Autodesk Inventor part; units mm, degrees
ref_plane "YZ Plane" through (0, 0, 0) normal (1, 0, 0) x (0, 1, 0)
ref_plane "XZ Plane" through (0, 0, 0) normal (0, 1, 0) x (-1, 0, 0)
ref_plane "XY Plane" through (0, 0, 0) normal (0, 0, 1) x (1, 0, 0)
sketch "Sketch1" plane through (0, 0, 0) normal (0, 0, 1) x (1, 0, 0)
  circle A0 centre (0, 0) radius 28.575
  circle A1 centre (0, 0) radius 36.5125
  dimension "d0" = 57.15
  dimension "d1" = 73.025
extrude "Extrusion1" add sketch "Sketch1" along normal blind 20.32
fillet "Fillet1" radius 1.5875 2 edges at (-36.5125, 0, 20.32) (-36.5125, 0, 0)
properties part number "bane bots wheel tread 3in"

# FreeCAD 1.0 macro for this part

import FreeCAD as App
import Part
import Sketcher

V = App.Vector
Q = App.Units.Quantity


def edges_at(feature, points):
    """Names of the edges that pass closest to the given points."""
    edges = feature.Shape.Edges
    near = lambda p: min(range(len(edges)), key=lambda i: edges[i].distToShape(Part.Vertex(*p))[0])
    return sorted({f"Edge{near(p) + 1}" for p in points})

doc = App.newDocument("Part")
body = doc.addObject("PartDesign::Body", "Body")

# Sketch on XY plane
sketch1 = body.newObject("Sketcher::SketchObject", "Sketch")
sketch1.AttachmentSupport = (doc.getObject("XY_Plane"), [""])
sketch1.MapMode = "FlatFace"
sketch1.addGeometry([
    Part.Circle(V(0, 0, 0), V(0, 0, 1), 37),
    Part.Circle(V(0, 0, 0), V(0, 0, 1), 29),
], False)
sketch1.addConstraint([
    Sketcher.Constraint("Coincident", 0, 3, -1, 1),
    Sketcher.Constraint("Coincident", 1, 3, -1, 1),
    Sketcher.Constraint("Diameter", 1, Q("2.25 in")),
    Sketcher.Constraint("Diameter", 0, Q("2.875 in")),
])
pad1 = body.newObject("PartDesign::Pad", "Pad")
pad1.Profile = sketch1
pad1.Length = Q("0.8 in")
doc.recompute()

fillet = body.newObject("PartDesign::Fillet", "Fillet")
fillet.Base = (pad1, edges_at(pad1, [(-36.513, 0, 20.32), (-36.513, 0, 0)]))
fillet.Radius = Q("0.0625 in")

doc.recompute()
